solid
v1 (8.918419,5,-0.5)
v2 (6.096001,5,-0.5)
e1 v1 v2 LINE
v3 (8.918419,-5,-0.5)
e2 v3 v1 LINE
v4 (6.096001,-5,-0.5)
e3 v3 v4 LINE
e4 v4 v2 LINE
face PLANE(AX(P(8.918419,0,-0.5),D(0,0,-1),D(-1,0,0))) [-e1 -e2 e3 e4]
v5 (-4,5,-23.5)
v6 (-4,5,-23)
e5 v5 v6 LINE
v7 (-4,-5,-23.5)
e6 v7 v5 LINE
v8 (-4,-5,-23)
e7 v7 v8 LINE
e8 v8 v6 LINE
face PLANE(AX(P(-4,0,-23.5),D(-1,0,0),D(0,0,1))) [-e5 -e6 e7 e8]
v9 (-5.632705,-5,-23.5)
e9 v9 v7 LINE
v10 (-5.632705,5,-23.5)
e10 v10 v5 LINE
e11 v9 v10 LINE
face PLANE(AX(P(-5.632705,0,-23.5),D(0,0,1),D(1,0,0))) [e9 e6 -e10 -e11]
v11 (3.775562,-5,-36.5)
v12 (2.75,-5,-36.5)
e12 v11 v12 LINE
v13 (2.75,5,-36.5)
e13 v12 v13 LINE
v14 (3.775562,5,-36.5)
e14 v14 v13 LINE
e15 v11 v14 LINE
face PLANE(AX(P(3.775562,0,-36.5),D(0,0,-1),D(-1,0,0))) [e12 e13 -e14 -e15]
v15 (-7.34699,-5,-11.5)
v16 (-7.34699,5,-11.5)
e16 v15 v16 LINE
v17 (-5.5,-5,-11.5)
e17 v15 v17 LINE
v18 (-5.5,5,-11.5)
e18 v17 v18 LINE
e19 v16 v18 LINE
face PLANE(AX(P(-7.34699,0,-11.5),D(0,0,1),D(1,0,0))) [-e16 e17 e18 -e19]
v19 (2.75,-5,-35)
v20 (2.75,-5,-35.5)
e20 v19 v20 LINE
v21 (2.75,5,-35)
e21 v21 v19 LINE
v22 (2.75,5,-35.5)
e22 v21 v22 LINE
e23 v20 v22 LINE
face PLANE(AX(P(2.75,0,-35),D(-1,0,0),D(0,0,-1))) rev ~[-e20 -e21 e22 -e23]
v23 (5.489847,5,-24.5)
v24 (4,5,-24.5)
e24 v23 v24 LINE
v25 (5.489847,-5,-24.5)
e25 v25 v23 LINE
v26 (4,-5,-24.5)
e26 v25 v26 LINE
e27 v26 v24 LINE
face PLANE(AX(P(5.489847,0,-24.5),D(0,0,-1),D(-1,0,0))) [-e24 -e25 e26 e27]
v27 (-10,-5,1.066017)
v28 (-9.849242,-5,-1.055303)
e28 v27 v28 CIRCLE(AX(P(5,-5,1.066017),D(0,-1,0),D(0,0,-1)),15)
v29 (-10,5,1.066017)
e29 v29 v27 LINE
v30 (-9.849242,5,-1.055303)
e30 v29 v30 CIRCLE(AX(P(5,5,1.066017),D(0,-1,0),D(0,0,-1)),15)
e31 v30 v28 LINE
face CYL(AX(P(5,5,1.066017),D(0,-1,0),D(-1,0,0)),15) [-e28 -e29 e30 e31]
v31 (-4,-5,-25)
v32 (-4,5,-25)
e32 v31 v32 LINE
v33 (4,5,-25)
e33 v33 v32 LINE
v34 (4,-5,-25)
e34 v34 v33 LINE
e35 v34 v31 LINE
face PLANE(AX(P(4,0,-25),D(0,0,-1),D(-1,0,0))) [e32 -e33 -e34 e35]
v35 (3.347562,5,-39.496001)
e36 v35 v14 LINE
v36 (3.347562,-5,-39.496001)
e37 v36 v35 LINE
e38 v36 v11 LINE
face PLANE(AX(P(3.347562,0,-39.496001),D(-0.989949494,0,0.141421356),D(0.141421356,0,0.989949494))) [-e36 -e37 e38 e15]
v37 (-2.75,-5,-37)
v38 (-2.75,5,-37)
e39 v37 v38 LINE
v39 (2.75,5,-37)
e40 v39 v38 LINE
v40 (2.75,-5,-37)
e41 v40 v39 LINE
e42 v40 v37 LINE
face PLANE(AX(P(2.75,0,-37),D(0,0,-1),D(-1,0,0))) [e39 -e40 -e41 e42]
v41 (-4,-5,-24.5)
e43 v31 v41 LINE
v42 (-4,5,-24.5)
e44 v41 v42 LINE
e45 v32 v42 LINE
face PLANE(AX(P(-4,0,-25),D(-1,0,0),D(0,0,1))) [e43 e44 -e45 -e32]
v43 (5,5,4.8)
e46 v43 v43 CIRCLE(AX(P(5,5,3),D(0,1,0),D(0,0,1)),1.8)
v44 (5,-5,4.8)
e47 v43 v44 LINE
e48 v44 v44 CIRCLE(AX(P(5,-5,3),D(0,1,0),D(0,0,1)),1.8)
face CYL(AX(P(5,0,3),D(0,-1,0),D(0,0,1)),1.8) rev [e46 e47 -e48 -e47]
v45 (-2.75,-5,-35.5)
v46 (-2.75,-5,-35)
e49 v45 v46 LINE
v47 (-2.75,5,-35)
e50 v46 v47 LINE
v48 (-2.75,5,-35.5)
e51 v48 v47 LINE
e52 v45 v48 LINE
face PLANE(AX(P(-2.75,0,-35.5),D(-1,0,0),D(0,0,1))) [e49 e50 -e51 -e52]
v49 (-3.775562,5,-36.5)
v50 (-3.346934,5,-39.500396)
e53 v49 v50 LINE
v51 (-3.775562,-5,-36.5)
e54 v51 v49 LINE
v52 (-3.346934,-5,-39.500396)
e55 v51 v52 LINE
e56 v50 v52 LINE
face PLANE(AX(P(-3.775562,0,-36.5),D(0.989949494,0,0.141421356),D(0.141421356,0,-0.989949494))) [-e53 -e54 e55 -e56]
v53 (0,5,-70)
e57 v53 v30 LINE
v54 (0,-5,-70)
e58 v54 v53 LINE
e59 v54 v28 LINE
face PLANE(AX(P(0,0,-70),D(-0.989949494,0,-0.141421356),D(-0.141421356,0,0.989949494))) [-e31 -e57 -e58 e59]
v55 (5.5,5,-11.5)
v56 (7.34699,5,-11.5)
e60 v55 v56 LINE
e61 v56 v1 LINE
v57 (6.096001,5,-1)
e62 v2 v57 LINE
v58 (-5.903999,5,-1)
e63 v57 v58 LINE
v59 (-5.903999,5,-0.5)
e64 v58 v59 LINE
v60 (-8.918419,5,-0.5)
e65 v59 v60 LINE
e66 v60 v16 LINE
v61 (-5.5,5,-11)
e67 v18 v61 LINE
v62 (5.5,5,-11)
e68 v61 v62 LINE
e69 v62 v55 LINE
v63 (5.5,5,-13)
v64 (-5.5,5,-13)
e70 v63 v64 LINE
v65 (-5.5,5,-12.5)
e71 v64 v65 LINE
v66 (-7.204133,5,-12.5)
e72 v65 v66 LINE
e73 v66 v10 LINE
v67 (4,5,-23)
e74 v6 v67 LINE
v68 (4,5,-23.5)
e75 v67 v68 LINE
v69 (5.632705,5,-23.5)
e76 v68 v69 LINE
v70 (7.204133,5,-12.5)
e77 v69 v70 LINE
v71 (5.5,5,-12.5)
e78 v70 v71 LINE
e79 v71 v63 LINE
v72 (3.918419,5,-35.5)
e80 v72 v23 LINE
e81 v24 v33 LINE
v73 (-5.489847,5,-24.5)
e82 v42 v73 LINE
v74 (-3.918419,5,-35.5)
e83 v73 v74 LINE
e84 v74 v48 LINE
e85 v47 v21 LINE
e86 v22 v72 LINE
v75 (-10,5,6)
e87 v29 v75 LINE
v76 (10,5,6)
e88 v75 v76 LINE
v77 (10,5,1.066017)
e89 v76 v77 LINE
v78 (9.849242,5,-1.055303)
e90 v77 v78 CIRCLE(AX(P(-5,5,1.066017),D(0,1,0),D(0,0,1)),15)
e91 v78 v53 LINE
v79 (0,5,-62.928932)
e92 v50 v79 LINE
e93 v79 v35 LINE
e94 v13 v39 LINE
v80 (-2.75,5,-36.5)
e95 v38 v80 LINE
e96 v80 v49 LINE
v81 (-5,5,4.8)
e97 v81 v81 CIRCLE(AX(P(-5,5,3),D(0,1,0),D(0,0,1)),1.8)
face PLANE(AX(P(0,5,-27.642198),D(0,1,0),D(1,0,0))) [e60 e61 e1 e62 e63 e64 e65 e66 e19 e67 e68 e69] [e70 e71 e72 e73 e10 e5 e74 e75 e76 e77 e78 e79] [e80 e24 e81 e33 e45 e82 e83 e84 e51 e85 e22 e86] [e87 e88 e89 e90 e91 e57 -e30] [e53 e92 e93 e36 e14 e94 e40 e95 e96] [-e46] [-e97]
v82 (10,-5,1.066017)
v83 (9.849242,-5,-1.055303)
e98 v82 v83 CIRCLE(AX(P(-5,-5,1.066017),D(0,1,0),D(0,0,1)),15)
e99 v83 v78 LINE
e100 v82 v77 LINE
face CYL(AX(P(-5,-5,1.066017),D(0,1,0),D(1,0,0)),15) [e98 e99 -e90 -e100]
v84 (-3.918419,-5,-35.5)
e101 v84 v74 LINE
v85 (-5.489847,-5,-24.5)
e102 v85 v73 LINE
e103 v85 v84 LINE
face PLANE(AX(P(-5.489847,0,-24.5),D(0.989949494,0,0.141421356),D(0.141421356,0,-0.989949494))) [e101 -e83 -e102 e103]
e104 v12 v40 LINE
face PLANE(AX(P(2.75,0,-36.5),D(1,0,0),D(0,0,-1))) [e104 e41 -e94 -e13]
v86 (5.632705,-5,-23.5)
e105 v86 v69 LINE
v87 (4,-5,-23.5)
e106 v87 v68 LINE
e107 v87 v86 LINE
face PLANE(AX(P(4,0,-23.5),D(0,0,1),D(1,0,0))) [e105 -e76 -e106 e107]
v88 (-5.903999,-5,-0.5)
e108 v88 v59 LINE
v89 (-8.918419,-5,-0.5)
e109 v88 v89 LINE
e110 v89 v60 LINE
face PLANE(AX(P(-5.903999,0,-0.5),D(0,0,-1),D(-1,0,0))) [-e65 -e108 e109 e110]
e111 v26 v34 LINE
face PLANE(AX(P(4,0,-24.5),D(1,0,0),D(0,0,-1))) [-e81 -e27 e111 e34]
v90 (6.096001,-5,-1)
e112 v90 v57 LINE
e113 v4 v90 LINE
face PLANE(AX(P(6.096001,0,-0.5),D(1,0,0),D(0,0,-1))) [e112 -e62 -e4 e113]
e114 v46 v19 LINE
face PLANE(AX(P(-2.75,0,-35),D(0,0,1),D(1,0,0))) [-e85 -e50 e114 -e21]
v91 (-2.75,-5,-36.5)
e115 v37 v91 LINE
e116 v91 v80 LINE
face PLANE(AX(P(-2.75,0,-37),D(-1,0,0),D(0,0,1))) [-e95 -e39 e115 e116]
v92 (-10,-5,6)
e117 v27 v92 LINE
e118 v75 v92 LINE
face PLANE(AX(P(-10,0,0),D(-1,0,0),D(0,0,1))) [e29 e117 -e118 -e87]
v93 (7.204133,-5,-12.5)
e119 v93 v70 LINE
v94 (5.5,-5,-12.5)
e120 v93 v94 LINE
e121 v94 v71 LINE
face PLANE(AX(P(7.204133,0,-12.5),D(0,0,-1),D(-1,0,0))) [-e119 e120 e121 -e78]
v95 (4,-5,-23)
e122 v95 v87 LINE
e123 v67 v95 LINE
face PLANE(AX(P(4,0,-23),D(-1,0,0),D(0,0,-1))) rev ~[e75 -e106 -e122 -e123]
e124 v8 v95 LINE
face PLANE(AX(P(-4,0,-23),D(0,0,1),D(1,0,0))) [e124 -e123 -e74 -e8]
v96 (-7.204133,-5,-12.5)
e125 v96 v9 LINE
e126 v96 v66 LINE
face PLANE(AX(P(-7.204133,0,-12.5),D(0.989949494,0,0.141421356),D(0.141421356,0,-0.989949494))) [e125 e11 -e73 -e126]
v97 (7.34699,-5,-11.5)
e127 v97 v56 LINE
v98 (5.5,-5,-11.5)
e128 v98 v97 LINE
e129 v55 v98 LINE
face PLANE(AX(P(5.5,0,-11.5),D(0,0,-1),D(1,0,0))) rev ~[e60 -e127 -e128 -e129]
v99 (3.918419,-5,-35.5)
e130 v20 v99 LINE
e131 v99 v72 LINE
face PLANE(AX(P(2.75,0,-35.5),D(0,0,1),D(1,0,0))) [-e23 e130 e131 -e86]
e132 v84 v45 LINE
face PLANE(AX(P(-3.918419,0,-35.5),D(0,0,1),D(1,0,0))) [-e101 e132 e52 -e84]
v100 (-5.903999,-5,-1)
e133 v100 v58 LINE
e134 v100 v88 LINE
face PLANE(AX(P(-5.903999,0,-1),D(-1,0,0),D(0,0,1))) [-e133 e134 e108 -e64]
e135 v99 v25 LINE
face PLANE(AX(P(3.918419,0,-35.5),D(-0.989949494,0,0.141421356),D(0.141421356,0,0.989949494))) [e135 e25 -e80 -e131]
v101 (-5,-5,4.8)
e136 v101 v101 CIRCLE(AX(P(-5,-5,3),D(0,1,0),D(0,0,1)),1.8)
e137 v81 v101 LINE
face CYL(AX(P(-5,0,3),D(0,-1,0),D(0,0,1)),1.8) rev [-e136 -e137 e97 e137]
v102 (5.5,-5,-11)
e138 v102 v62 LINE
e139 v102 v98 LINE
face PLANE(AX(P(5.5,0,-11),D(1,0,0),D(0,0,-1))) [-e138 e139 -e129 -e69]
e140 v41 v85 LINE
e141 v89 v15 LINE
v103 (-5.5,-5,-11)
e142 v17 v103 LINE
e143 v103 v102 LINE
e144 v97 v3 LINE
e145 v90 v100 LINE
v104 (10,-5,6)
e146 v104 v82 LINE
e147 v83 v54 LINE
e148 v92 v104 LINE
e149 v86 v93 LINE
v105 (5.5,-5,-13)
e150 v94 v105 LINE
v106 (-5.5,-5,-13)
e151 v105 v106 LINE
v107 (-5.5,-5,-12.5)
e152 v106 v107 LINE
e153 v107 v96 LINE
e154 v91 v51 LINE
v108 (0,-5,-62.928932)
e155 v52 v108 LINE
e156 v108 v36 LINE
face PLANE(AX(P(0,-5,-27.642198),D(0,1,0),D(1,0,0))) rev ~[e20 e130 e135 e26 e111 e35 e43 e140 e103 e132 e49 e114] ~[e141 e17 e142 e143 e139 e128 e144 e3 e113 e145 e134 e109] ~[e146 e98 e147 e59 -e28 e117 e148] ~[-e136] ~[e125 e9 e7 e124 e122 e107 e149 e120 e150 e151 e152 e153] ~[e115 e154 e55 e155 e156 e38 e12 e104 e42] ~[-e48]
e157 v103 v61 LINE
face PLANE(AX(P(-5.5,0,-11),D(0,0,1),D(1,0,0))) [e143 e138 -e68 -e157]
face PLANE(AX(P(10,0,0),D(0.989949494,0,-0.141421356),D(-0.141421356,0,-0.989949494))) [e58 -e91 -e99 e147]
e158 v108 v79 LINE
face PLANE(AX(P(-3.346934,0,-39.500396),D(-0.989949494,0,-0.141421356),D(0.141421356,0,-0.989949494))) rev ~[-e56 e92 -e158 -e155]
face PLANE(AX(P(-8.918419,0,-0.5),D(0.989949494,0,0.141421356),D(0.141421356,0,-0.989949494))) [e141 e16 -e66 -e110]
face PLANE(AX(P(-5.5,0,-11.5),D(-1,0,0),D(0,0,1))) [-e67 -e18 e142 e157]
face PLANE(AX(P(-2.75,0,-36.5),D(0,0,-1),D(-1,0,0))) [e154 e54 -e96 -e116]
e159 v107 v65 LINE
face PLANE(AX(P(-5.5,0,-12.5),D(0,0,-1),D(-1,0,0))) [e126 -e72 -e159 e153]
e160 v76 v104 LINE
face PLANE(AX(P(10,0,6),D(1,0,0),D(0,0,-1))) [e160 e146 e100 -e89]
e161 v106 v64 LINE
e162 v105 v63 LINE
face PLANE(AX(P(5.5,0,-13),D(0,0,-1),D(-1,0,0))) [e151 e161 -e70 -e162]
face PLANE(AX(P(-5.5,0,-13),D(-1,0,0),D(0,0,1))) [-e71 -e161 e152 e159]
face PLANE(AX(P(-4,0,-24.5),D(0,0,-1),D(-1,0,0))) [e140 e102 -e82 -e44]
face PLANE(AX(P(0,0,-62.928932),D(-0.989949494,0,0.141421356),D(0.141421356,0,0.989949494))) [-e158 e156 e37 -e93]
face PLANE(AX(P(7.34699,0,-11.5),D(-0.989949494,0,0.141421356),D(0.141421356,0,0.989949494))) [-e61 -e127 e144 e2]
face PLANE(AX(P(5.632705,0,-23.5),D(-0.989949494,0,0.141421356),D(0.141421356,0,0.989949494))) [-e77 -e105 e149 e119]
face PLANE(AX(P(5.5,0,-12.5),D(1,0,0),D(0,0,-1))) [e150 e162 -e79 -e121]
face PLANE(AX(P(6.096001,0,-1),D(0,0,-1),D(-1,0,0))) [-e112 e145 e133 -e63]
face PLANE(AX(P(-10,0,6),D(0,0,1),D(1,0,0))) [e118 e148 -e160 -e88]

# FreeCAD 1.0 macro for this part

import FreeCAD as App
import Part
import Sketcher

V = App.Vector
Q = App.Units.Quantity


def edges_at(feature, points):
    """Names of the edges that pass closest to the given points."""
    edges = feature.Shape.Edges
    near = lambda p: min(range(len(edges)), key=lambda i: edges[i].distToShape(Part.Vertex(*p))[0])
    return sorted({f"Edge{near(p) + 1}" for p in points})

doc = App.newDocument("Part")
body = doc.addObject("PartDesign::Body", "Body")

# Sketch on XZ plane
sketch1 = body.newObject("Sketcher::SketchObject", "Sketch")
sketch1.AttachmentSupport = (doc.getObject("XZ_Plane"), [""])
sketch1.MapMode = "FlatFace"
sketch1.addGeometry([
    Part.LineSegment(V(10, 6, 0), V(10, 0, 0)),  # 0
    Part.LineSegment(V(10, 0, 0), V(0, -70, 0)),  # 1
    Part.LineSegment(V(0, -70, 0), V(-10, 0, 0)),  # 2
    Part.LineSegment(V(-10, 0, 0), V(-10, 6, 0)),  # 3
    Part.LineSegment(V(-10, 6, 0), V(10, 6, 0)),  # 4
    Part.Circle(V(-5, 3, 0), V(0, 0, 1), 1.8),  # 5
    Part.LineSegment(V(-5.903999, -0.5, 0), V(-8.918419, -0.5, 0)),  # 6
    Part.LineSegment(V(-8.918419, -0.5, 0), V(-7.34699, -11.5, 0)),  # 7
    Part.LineSegment(V(-7.34699, -11.5, 0), V(-5.5, -11.5, 0)),  # 8
    Part.LineSegment(V(-5.5, -11.5, 0), V(-5.5, -11, 0)),  # 9
    Part.LineSegment(V(-5.5, -11, 0), V(5.5, -11, 0)),  # 10
    Part.LineSegment(V(5.5, -11, 0), V(5.5, -11.5, 0)),  # 11
    Part.LineSegment(V(5.5, -11.5, 0), V(7.34699, -11.5, 0)),  # 12
    Part.LineSegment(V(7.34699, -11.5, 0), V(8.918419, -0.5, 0)),  # 13
    Part.LineSegment(V(8.918419, -0.5, 0), V(6.096001, -0.5, 0)),  # 14
    Part.LineSegment(V(6.096001, -0.5, 0), V(6.096001, -1, 0)),  # 15
    Part.LineSegment(V(6.096001, -1, 0), V(-5.903999, -1, 0)),  # 16
    Part.LineSegment(V(-5.903999, -1, 0), V(-5.903999, -0.5, 0)),  # 17
    Part.Circle(V(5, 3, 0), V(0, 0, 1), 1.8),  # 18
    Part.LineSegment(V(-5.5, -13, 0), V(-5.5, -12.5, 0)),  # 19
    Part.LineSegment(V(-5.5, -12.5, 0), V(-7.204133, -12.5, 0)),  # 20
    Part.LineSegment(V(-7.204133, -12.5, 0), V(-5.632705, -23.5, 0)),  # 21
    Part.LineSegment(V(-5.632705, -23.5, 0), V(-4, -23.5, 0)),  # 22
    Part.LineSegment(V(-4, -23.5, 0), V(-4, -23, 0)),  # 23
    Part.LineSegment(V(-4, -23, 0), V(4, -23, 0)),  # 24
    Part.LineSegment(V(4, -23, 0), V(4, -23.5, 0)),  # 25
    Part.LineSegment(V(4, -23.5, 0), V(5.632705, -23.5, 0)),  # 26
    Part.LineSegment(V(5.632705, -23.5, 0), V(7.204133, -12.5, 0)),  # 27
    Part.LineSegment(V(7.204133, -12.5, 0), V(5.5, -12.5, 0)),  # 28
    Part.LineSegment(V(5.5, -12.5, 0), V(5.5, -13, 0)),  # 29
    Part.LineSegment(V(5.5, -13, 0), V(-5.5, -13, 0)),  # 30
    Part.LineSegment(V(-4, -25, 0), V(-4, -24.5, 0)),  # 31
    Part.LineSegment(V(-4, -24.5, 0), V(-5.489847, -24.5, 0)),  # 32
    Part.LineSegment(V(-5.489847, -24.5, 0), V(-3.918419, -35.5, 0)),  # 33
    Part.LineSegment(V(-3.918419, -35.5, 0), V(-2.75, -35.5, 0)),  # 34
    Part.LineSegment(V(-2.75, -35.5, 0), V(-2.75, -35, 0)),  # 35
    Part.LineSegment(V(-2.75, -35, 0), V(2.75, -35, 0)),  # 36
    Part.LineSegment(V(2.75, -35, 0), V(2.75, -35.5, 0)),  # 37
    Part.LineSegment(V(2.75, -35.5, 0), V(3.918419, -35.5, 0)),  # 38
    Part.LineSegment(V(3.918419, -35.5, 0), V(5.489847, -24.5, 0)),  # 39
    Part.LineSegment(V(5.489847, -24.5, 0), V(4, -24.5, 0)),  # 40
    Part.LineSegment(V(4, -24.5, 0), V(4, -25, 0)),  # 41
    Part.LineSegment(V(4, -25, 0), V(-4, -25, 0)),  # 42
    Part.LineSegment(V(-3.775562, -36.5, 0), V(-3.346934, -39.500396, 0)),  # 43
    Part.LineSegment(V(-3.346934, -39.500396, 0), V(0, -62.928932, 0)),  # 44
    Part.LineSegment(V(0, -62.928932, 0), V(3.347562, -39.496001, 0)),  # 45
    Part.LineSegment(V(3.347562, -39.496001, 0), V(3.775562, -36.5, 0)),  # 46
    Part.LineSegment(V(3.775562, -36.5, 0), V(2.75, -36.5, 0)),  # 47
    Part.LineSegment(V(2.75, -36.5, 0), V(2.75, -37, 0)),  # 48
    Part.LineSegment(V(2.75, -37, 0), V(-2.75, -37, 0)),  # 49
    Part.LineSegment(V(-2.75, -37, 0), V(-2.75, -36.5, 0)),  # 50
    Part.LineSegment(V(-2.75, -36.5, 0), V(-3.775562, -36.5, 0)),  # 51
], False)
sketch1.addConstraint([
    Sketcher.Constraint("Coincident", 0, 2, 1, 1),
    Sketcher.Constraint("Coincident", 1, 2, 2, 1),
    Sketcher.Constraint("Coincident", 2, 2, 3, 1),
    Sketcher.Constraint("Coincident", 3, 2, 4, 1),
    Sketcher.Constraint("Coincident", 4, 2, 0, 1),
    Sketcher.Constraint("Coincident", 6, 2, 7, 1),
    Sketcher.Constraint("Coincident", 7, 2, 8, 1),
    Sketcher.Constraint("Coincident", 8, 2, 9, 1),
    Sketcher.Constraint("Coincident", 9, 2, 10, 1),
    Sketcher.Constraint("Coincident", 10, 2, 11, 1),
    Sketcher.Constraint("Coincident", 11, 2, 12, 1),
    Sketcher.Constraint("Coincident", 12, 2, 13, 1),
    Sketcher.Constraint("Coincident", 13, 2, 14, 1),
    Sketcher.Constraint("Coincident", 14, 2, 15, 1),
    Sketcher.Constraint("Coincident", 15, 2, 16, 1),
    Sketcher.Constraint("Coincident", 16, 2, 17, 1),
    Sketcher.Constraint("Coincident", 17, 2, 6, 1),
    Sketcher.Constraint("Coincident", 19, 2, 20, 1),
    Sketcher.Constraint("Coincident", 20, 2, 21, 1),
    Sketcher.Constraint("Coincident", 21, 2, 22, 1),
    Sketcher.Constraint("Coincident", 22, 2, 23, 1),
    Sketcher.Constraint("Coincident", 23, 2, 24, 1),
    Sketcher.Constraint("Coincident", 24, 2, 25, 1),
    Sketcher.Constraint("Coincident", 25, 2, 26, 1),
    Sketcher.Constraint("Coincident", 26, 2, 27, 1),
    Sketcher.Constraint("Coincident", 27, 2, 28, 1),
    Sketcher.Constraint("Coincident", 28, 2, 29, 1),
    Sketcher.Constraint("Coincident", 29, 2, 30, 1),
    Sketcher.Constraint("Coincident", 30, 2, 19, 1),
    Sketcher.Constraint("Coincident", 31, 2, 32, 1),
    Sketcher.Constraint("Coincident", 32, 2, 33, 1),
    Sketcher.Constraint("Coincident", 33, 2, 34, 1),
    Sketcher.Constraint("Coincident", 34, 2, 35, 1),
    Sketcher.Constraint("Coincident", 35, 2, 36, 1),
    Sketcher.Constraint("Coincident", 36, 2, 37, 1),
    Sketcher.Constraint("Coincident", 37, 2, 38, 1),
    Sketcher.Constraint("Coincident", 38, 2, 39, 1),
    Sketcher.Constraint("Coincident", 39, 2, 40, 1),
    Sketcher.Constraint("Coincident", 40, 2, 41, 1),
    Sketcher.Constraint("Coincident", 41, 2, 42, 1),
    Sketcher.Constraint("Coincident", 42, 2, 31, 1),
    Sketcher.Constraint("Coincident", 43, 2, 44, 1),
    Sketcher.Constraint("Coincident", 44, 2, 45, 1),
    Sketcher.Constraint("Coincident", 45, 2, 46, 1),
    Sketcher.Constraint("Coincident", 46, 2, 47, 1),
    Sketcher.Constraint("Coincident", 47, 2, 48, 1),
    Sketcher.Constraint("Coincident", 48, 2, 49, 1),
    Sketcher.Constraint("Coincident", 49, 2, 50, 1),
    Sketcher.Constraint("Coincident", 50, 2, 51, 1),
    Sketcher.Constraint("Coincident", 51, 2, 43, 1),
    Sketcher.Constraint("Vertical", 0),
    Sketcher.Constraint("Vertical", 3),
    Sketcher.Constraint("Horizontal", 4),
    Sketcher.Constraint("Horizontal", 6),
    Sketcher.Constraint("Horizontal", 8),
    Sketcher.Constraint("Vertical", 9),
    Sketcher.Constraint("Horizontal", 10),
    Sketcher.Constraint("Vertical", 11),
    Sketcher.Constraint("Horizontal", 12),
    Sketcher.Constraint("Horizontal", 14),
    Sketcher.Constraint("Vertical", 15),
    Sketcher.Constraint("Horizontal", 16),
    Sketcher.Constraint("Vertical", 17),
    Sketcher.Constraint("Vertical", 19),
    Sketcher.Constraint("Horizontal", 20),
    Sketcher.Constraint("Horizontal", 22),
    Sketcher.Constraint("Vertical", 23),
    Sketcher.Constraint("Horizontal", 24),
    Sketcher.Constraint("Vertical", 25),
    Sketcher.Constraint("Horizontal", 26),
    Sketcher.Constraint("Horizontal", 28),
    Sketcher.Constraint("Vertical", 29),
    Sketcher.Constraint("Horizontal", 30),
    Sketcher.Constraint("Vertical", 31),
    Sketcher.Constraint("Horizontal", 32),
    Sketcher.Constraint("Horizontal", 34),
    Sketcher.Constraint("Vertical", 35),
    Sketcher.Constraint("Horizontal", 36),
    Sketcher.Constraint("Vertical", 37),
    Sketcher.Constraint("Horizontal", 38),
    Sketcher.Constraint("Horizontal", 40),
    Sketcher.Constraint("Vertical", 41),
    Sketcher.Constraint("Horizontal", 42),
    Sketcher.Constraint("Horizontal", 47),
    Sketcher.Constraint("Vertical", 48),
    Sketcher.Constraint("Horizontal", 49),
    Sketcher.Constraint("Vertical", 50),
    Sketcher.Constraint("Horizontal", 51),
    Sketcher.Constraint("Equal", 5, 18),
    Sketcher.Constraint("Symmetric", 0, 2, 2, 2, -1, 1),
    Sketcher.Constraint("Symmetric", 5, 3, 18, 3, -2),
    Sketcher.Constraint("Symmetric", 8, 2, 11, 2, -2),
    Sketcher.Constraint("Symmetric", 6, 2, 13, 2, -2),
    Sketcher.Constraint("Symmetric", 22, 2, 25, 2, -2),
    Sketcher.Constraint("Symmetric", 20, 2, 27, 2, -2),
    Sketcher.Constraint("Symmetric", 34, 2, 37, 2, -2),
    Sketcher.Constraint("Symmetric", 32, 2, 39, 2, -2),
    Sketcher.Constraint("Symmetric", 47, 2, 50, 2, -2),
    Sketcher.Constraint("PointOnObject", 0, 2, -1),
    Sketcher.Constraint("PointOnObject", 1, 2, -2),
    Sketcher.Constraint("PointOnObject", 44, 2, -2),
    Sketcher.Constraint("Parallel", 2, 7),
    Sketcher.Constraint("Parallel", 1, 13),
    Sketcher.Constraint("Parallel", 7, 21),
    Sketcher.Constraint("Parallel", 13, 27),
    Sketcher.Constraint("Parallel", 21, 33),
    Sketcher.Constraint("Parallel", 27, 39),
    Sketcher.Constraint("Parallel", 33, 43),
    Sketcher.Constraint("Parallel", 43, 44),
    Sketcher.Constraint("Parallel", 39, 45),
    Sketcher.Constraint("Parallel", 45, 46),
    Sketcher.Constraint("Vertical", 9, 2, 19, 2),
    Sketcher.Constraint("Vertical", 11, 2, 28, 2),
    Sketcher.Constraint("Vertical", 23, 2, 31, 2),
    Sketcher.Constraint("Vertical", 25, 2, 40, 2),
    Sketcher.Constraint("Vertical", 37, 2, 47, 2),
    Sketcher.Constraint("Equal", 11, 15),
    Sketcher.Constraint("Equal", 17, 19),
    Sketcher.Constraint("Equal", 19, 23),
    Sketcher.Constraint("Equal", 29, 31),
    Sketcher.Constraint("Equal", 31, 35),
    Sketcher.Constraint("Equal", 41, 48),
    Sketcher.Constraint("Equal", 13, 21),
    Sketcher.Constraint("Equal", 27, 33),
    Sketcher.Constraint("Diameter", 5, Q("3.6 mm")),
    Sketcher.Constraint("DistanceX", 4, 1, 4, 2, Q("20 mm")),
    Sketcher.Constraint("DistanceX", 10, 1, 10, 2, Q("11 mm")),
    Sketcher.Constraint("DistanceX", 16, 2, 16, 1, Q("12 mm")),
    Sketcher.Constraint("DistanceX", 24, 1, 24, 2, Q("8 mm")),
    Sketcher.Constraint("DistanceY", 0, 2, 0, 1, Q("6 mm")),
    Sketcher.Constraint("DistanceX", 36, 1, 36, 2, Q("5.5 mm")),
    Sketcher.Constraint("DistanceY", 9, 1, 9, 2, Q("0.5 mm")),
    Sketcher.Constraint("DistanceX", 5, 3, -1, 1, Q("5 mm")),
    Sketcher.Constraint("DistanceY", -1, 1, 5, 3, Q("3 mm")),
    Sketcher.Constraint("DistanceY", 1, 2, -1, 1, Q("70 mm")),
    Sketcher.Constraint("DistanceY", 9, 2, -1, 1, Q("11 mm")),
    Sketcher.Constraint("DistanceY", 15, 2, -1, 1, Q("1 mm")),
    Sketcher.Constraint("DistanceY", 23, 2, -1, 1, Q("23 mm")),
    Sketcher.Constraint("DistanceY", 35, 2, -1, 1, Q("35 mm")),
    Sketcher.Constraint("DistanceY", 48, 2, -1, 1, Q("37 mm")),
    Sketcher.Constraint("DistanceX", -1, 1, 14, 2, Q("6.096001 mm")),
    Sketcher.Constraint("DistanceY", 45, 2, -1, 1, Q("39.496001 mm")),
    Sketcher.Constraint("DistanceX", 6, 2, 6, 1, Q("3.014419 mm")),
    Sketcher.Constraint("DistanceX", 34, 1, 34, 2, Q("1.168419 mm")),
    Sketcher.Constraint("DistanceX", 47, 2, 47, 1, Q("1.025562 mm")),
    Sketcher.Constraint("DistanceX", 20, 2, 20, 1, Q("1.704133 mm")),
    Sketcher.Constraint("Distance", 43, Q("3.030858 mm")),
])
pad1 = body.newObject("PartDesign::Pad", "Pad")
pad1.Profile = sketch1
pad1.Length = 10
pad1.Midplane = True
doc.recompute()

fillet = body.newObject("PartDesign::Fillet", "Fillet")
fillet.Base = (pad1, edges_at(pad1, [(-10, 0, 0), (10, 0, 0)]))
fillet.Radius = 15

doc.recompute()
